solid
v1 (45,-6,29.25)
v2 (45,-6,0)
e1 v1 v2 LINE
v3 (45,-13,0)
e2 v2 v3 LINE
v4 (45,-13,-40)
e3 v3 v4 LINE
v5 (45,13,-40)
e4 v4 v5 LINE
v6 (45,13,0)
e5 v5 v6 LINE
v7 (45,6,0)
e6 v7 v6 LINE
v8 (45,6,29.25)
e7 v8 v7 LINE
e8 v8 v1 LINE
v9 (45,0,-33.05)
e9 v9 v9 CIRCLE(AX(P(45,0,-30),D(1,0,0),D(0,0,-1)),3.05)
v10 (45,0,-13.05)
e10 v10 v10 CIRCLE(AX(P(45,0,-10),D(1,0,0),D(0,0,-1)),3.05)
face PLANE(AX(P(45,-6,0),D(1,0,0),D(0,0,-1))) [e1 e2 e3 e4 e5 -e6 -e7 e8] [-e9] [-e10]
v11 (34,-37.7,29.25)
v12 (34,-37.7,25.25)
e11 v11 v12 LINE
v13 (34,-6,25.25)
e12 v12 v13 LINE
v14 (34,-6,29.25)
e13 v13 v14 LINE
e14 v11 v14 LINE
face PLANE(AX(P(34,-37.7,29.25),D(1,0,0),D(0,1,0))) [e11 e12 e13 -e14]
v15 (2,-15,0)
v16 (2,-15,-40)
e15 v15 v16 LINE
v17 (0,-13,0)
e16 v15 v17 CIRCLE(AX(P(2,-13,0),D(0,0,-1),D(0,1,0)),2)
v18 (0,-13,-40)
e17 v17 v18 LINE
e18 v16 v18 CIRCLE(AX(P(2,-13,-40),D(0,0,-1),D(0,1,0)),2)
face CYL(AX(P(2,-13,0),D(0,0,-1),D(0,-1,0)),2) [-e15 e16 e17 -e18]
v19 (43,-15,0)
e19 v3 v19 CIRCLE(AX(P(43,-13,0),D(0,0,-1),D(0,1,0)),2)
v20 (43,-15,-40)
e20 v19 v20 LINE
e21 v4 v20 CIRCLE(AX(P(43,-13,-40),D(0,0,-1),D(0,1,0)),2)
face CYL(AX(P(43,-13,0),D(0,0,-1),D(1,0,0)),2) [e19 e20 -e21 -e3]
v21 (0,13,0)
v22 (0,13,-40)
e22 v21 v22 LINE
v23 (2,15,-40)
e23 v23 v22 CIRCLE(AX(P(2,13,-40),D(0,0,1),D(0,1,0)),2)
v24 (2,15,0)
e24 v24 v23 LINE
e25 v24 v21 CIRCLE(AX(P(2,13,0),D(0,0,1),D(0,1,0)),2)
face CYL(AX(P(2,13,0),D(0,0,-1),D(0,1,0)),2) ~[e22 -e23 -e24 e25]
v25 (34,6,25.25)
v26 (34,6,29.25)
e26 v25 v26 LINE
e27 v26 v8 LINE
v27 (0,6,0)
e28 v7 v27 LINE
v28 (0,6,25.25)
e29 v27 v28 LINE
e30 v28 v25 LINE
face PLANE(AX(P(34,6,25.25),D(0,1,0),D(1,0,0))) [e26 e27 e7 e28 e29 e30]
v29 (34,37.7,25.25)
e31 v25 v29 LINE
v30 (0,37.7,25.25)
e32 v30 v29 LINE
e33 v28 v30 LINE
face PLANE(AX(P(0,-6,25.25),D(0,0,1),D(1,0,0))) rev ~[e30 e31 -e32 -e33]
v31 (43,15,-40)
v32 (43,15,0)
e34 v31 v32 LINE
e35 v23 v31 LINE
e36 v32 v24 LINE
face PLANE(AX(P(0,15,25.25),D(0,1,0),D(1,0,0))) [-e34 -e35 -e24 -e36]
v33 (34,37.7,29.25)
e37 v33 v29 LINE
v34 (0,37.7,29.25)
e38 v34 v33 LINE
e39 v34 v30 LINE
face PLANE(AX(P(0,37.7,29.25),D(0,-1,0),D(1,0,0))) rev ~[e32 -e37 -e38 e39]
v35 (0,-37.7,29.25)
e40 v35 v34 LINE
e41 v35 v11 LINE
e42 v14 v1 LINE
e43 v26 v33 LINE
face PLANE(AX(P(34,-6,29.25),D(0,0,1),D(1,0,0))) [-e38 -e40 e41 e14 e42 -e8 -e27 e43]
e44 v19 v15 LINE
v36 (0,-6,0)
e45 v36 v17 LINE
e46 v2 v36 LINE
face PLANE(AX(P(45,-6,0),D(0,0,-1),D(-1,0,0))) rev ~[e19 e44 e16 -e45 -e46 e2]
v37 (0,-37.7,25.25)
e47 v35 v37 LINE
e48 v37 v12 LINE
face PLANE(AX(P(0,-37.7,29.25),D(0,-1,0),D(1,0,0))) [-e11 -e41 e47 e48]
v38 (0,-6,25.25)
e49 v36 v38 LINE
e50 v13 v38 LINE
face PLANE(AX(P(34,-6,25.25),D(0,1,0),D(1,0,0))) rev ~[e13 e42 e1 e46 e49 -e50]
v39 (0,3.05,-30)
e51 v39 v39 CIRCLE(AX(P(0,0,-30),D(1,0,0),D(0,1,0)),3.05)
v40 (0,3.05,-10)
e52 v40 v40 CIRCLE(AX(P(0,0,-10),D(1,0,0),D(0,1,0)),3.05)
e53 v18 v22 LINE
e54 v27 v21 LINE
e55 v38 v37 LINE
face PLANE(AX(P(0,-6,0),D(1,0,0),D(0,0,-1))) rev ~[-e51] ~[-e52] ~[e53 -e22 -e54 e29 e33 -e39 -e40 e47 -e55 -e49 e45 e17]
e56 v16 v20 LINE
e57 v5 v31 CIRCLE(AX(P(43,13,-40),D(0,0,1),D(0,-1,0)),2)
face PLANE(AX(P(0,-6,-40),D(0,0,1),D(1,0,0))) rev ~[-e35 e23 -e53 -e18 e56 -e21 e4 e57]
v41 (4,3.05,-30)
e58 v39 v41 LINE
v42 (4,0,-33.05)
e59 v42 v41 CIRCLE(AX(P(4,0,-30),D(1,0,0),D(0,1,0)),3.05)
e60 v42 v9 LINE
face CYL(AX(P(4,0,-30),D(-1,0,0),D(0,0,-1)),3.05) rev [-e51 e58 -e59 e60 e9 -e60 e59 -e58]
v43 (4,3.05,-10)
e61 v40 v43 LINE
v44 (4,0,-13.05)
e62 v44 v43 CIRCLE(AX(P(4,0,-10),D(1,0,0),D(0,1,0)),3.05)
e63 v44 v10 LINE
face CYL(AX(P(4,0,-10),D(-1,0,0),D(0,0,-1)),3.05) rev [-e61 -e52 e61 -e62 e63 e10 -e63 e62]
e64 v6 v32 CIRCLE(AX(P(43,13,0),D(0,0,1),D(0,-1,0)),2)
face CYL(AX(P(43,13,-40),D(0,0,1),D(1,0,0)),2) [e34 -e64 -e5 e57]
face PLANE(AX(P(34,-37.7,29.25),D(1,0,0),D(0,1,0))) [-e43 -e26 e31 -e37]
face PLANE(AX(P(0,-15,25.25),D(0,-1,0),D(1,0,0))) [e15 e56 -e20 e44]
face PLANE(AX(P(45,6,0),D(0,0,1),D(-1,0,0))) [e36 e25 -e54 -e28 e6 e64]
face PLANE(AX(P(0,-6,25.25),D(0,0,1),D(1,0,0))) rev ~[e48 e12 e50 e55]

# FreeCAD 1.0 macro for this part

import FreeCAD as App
import Part
import Sketcher

V = App.Vector
Q = App.Units.Quantity


def edges_at(feature, points):
    """Names of the edges that pass closest to the given points."""
    edges = feature.Shape.Edges
    near = lambda p: min(range(len(edges)), key=lambda i: edges[i].distToShape(Part.Vertex(*p))[0])
    return sorted({f"Edge{near(p) + 1}" for p in points})


def add_polygon(sketch, points):
    """Adds a closed chain of lines whose ends are joined by coincident constraints."""
    first, n = sketch.GeometryCount, len(points)
    for a, b in zip(points, points[1:] + points[:1]):
        sketch.addGeometry(Part.LineSegment(App.Vector(*a, 0), App.Vector(*b, 0)), False)
    for i in range(n):
        sketch.addConstraint(Sketcher.Constraint("Coincident", first + i, 2, first + (i + 1) % n, 1))

doc = App.newDocument("Part")
params = doc.addObject("Spreadsheet::Sheet", "Params")
for row, (alias, value) in enumerate([
    ("sketch1_diameter", "6.1 mm"),
    ("sketch1_width", "12 mm"),
    ("sketch1_height", "40 mm"),
    ("pad1_length", "4 mm"),
    ("sketch2_width", "4 mm"),
    ("sketch2_height", "12 mm"),
    ("pad2_length", "29.25 mm"),
    ("sketch3_width", "34 mm"),
    ("sketch3_height", "31.7 mm"),
    ("sketch3_width2", "4 mm"),
    ("sketch3_height2", "12 mm"),
    ("pad3_length", "4 mm"),
    ("sketch4_diameter", "6.1 mm"),
    ("sketch4_width", "12 mm"),
    ("sketch4_height", "65.25 mm"),
    ("pad4_length", "41 mm"),
    ("sketch5_width", "11 mm"),
    ("sketch5_height", "12 mm"),
    ("pad5_length", "4 mm"),
    ("sketch6_height", "40 mm"),
    ("sketch6_width", "45 mm"),
    ("pad6_length", "9 mm"),
    ("fillet_radius", "2 mm"),
    ("sketch7_width", "45 mm"),
    ("sketch7_height", "40 mm"),
    ("pad7_length", "9 mm"),
    ("fillet2_radius", "2 mm"),
], start=1):
    params.set(f"A{row}", alias)
    params.set(f"B{row}", "=" + value)
    params.setAlias(f"B{row}", alias)

body = doc.addObject("PartDesign::Body", "Body")

# Sketch on YZ plane
sketch1 = doc.addObject("Sketcher::SketchObject", "Sketch")
body.addObject(sketch1)
sketch1.AttachmentSupport = (doc.YZ_Plane, [""])
sketch1.MapMode = "FlatFace"
add_polygon(sketch1, [(6, 0), (-6, 0), (-6, -40), (6, -40)])  # lines 0-3
sketch1.addGeometry(Part.Circle(V(0, -30, 0), V(0, 0, 1), 3), False)  # 4
sketch1.addGeometry(Part.Circle(V(0, -10, 0), V(0, 0, 1), 3), False)  # 5
sketch1.addConstraint(Sketcher.Constraint("Horizontal", 0))
sketch1.addConstraint(Sketcher.Constraint("Vertical", 1))
sketch1.addConstraint(Sketcher.Constraint("Horizontal", 2))
sketch1.addConstraint(Sketcher.Constraint("Vertical", 3))
sketch1.addConstraint(Sketcher.Constraint("Equal", 4, 5))
sketch1.addConstraint(Sketcher.Constraint("Symmetric", 0, 2, 3, 2, -1, 1))
sketch1.addConstraint(Sketcher.Constraint("PointOnObject", 4, 3, -2))
sketch1.addConstraint(Sketcher.Constraint("PointOnObject", 5, 3, -2))
sketch1.addConstraint(Sketcher.Constraint("Diameter", 4, Q("6.1 mm")))
sketch1.addConstraint(Sketcher.Constraint("DistanceX", 0, 2, 0, 1, Q("12 mm")))
sketch1.addConstraint(Sketcher.Constraint("DistanceY", 1, 2, 1, 1, Q("40 mm")))
sketch1.addConstraint(Sketcher.Constraint("DistanceY", 4, 3, -1, 1, Q("30 mm")))
sketch1.addConstraint(Sketcher.Constraint("DistanceY", 5, 3, -1, 1, Q("10 mm")))
sketch1.setExpression("Constraints[12]", "Params.sketch1_diameter")
sketch1.setExpression("Constraints[13]", "Params.sketch1_width")
sketch1.setExpression("Constraints[14]", "Params.sketch1_height")
pad1 = doc.addObject("PartDesign::Pad", "Pad")
body.addObject(pad1)
pad1.Profile = sketch1
pad1.setExpression("Length", "Params.pad1_length")

# Sketch on XY plane
sketch2 = doc.addObject("Sketcher::SketchObject", "Sketch001")
body.addObject(sketch2)
sketch2.AttachmentSupport = (doc.XY_Plane, [""])
sketch2.MapMode = "FlatFace"
add_polygon(sketch2, [(4, 6), (0, 6), (0, -6), (4, -6)])  # lines 0-3
sketch2.addConstraint(Sketcher.Constraint("Horizontal", 0))
sketch2.addConstraint(Sketcher.Constraint("Vertical", 1))
sketch2.addConstraint(Sketcher.Constraint("Horizontal", 2))
sketch2.addConstraint(Sketcher.Constraint("Vertical", 3))
sketch2.addConstraint(Sketcher.Constraint("Symmetric", 0, 2, 1, 2, -1, 1))
sketch2.addConstraint(Sketcher.Constraint("DistanceX", 0, 2, 0, 1, Q("4 mm")))
sketch2.addConstraint(Sketcher.Constraint("DistanceY", 1, 2, 1, 1, Q("12 mm")))
sketch2.setExpression("Constraints[9]", "Params.sketch2_width")
sketch2.setExpression("Constraints[10]", "Params.sketch2_height")
pad2 = doc.addObject("PartDesign::Pad", "Pad001")
body.addObject(pad2)
pad2.Profile = sketch2
pad2.setExpression("Length", "Params.pad2_length")

# Sketch on XY plane
sketch3 = doc.addObject("Sketcher::SketchObject", "Sketch002")
body.addObject(sketch3)
sketch3.AttachmentSupport = (doc.XY_Plane, [""])
sketch3.MapMode = "FlatFace"
sketch3.AttachmentOffset = App.Placement(V(0, 0, 29.25), App.Rotation())
add_polygon(sketch3, [(4, -6), (0, -6), (0, -37.7), (34, -37.7), (34, 37.7), (0, 37.7), (0, 6), (4, 6)])  # lines 0-7
sketch3.addConstraint(Sketcher.Constraint("Horizontal", 0))
sketch3.addConstraint(Sketcher.Constraint("Vertical", 1))
sketch3.addConstraint(Sketcher.Constraint("Horizontal", 2))
sketch3.addConstraint(Sketcher.Constraint("Vertical", 3))
sketch3.addConstraint(Sketcher.Constraint("Horizontal", 4))
sketch3.addConstraint(Sketcher.Constraint("Vertical", 5))
sketch3.addConstraint(Sketcher.Constraint("Horizontal", 6))
sketch3.addConstraint(Sketcher.Constraint("Vertical", 7))
sketch3.addConstraint(Sketcher.Constraint("Symmetric", 1, 2, 4, 2, -1, 1))
sketch3.addConstraint(Sketcher.Constraint("Symmetric", 0, 2, 5, 2, -1))
sketch3.addConstraint(Sketcher.Constraint("DistanceX", 2, 1, 2, 2, Q("34 mm")))
sketch3.addConstraint(Sketcher.Constraint("DistanceY", 1, 2, 1, 1, Q("31.7 mm")))
sketch3.addConstraint(Sketcher.Constraint("DistanceX", 0, 2, 0, 1, Q("4 mm")))
sketch3.addConstraint(Sketcher.Constraint("DistanceY", 7, 2, 7, 1, Q("12 mm")))
sketch3.setExpression("Constraints[18]", "Params.sketch3_width")
sketch3.setExpression("Constraints[19]", "Params.sketch3_height")
sketch3.setExpression("Constraints[20]", "Params.sketch3_width2")
sketch3.setExpression("Constraints[21]", "Params.sketch3_height2")
pad3 = doc.addObject("PartDesign::Pad", "Pad002")
body.addObject(pad3)
pad3.Profile = sketch3
pad3.setExpression("Length", "Params.pad3_length")
pad3.Reversed = True

# Sketch on YZ plane
sketch4 = doc.addObject("Sketcher::SketchObject", "Sketch003")
body.addObject(sketch4)
sketch4.AttachmentSupport = (doc.YZ_Plane, [""])
sketch4.MapMode = "FlatFace"
sketch4.AttachmentOffset = App.Placement(V(0, 0, 4), App.Rotation())
add_polygon(sketch4, [(6, -40), (6, 25.2), (-6, 25.2), (-6, -40)])  # lines 0-3
sketch4.addGeometry(Part.Circle(V(0, -10, 0), V(0, 0, 1), 3), False)  # 4
sketch4.addGeometry(Part.Circle(V(0, -30, 0), V(0, 0, 1), 3), False)  # 5
sketch4.addConstraint(Sketcher.Constraint("Vertical", 0))
sketch4.addConstraint(Sketcher.Constraint("Horizontal", 1))
sketch4.addConstraint(Sketcher.Constraint("Vertical", 2))
sketch4.addConstraint(Sketcher.Constraint("Horizontal", 3))
sketch4.addConstraint(Sketcher.Constraint("Equal", 4, 5))
sketch4.addConstraint(Sketcher.Constraint("PointOnObject", 4, 3, -2))
sketch4.addConstraint(Sketcher.Constraint("PointOnObject", 5, 3, -2))
sketch4.addConstraint(Sketcher.Constraint("Diameter", 4, Q("6.1 mm")))
sketch4.addConstraint(Sketcher.Constraint("DistanceX", 1, 2, 1, 1, Q("12 mm")))
sketch4.addConstraint(Sketcher.Constraint("DistanceY", 4, 3, -1, 1, Q("10 mm")))
sketch4.addConstraint(Sketcher.Constraint("DistanceY", 5, 3, -1, 1, Q("30 mm")))
sketch4.addConstraint(Sketcher.Constraint("DistanceX", -1, 1, 0, 2, Q("6 mm")))
sketch4.addConstraint(Sketcher.Constraint("DistanceY", 2, 2, -1, 1, Q("40 mm")))
sketch4.addConstraint(Sketcher.Constraint("DistanceY", 0, 1, 0, 2, Q("65.25 mm")))
sketch4.setExpression("Constraints[11]", "Params.sketch4_diameter")
sketch4.setExpression("Constraints[12]", "Params.sketch4_width")
sketch4.setExpression("Constraints[17]", "Params.sketch4_height")
pad4 = doc.addObject("PartDesign::Pad", "Pad003")
body.addObject(pad4)
pad4.Profile = sketch4
pad4.setExpression("Length", "Params.pad4_length")

# Sketch on XY plane
sketch5 = doc.addObject("Sketcher::SketchObject", "Sketch004")
body.addObject(sketch5)
sketch5.AttachmentSupport = (doc.XY_Plane, [""])
sketch5.MapMode = "FlatFace"
sketch5.AttachmentOffset = App.Placement(V(0, 0, 25.25), App.Rotation())
add_polygon(sketch5, [(45, 6), (34, 6), (34, -6), (45, -6)])  # lines 0-3
sketch5.addConstraint(Sketcher.Constraint("Horizontal", 0))
sketch5.addConstraint(Sketcher.Constraint("Vertical", 1))
sketch5.addConstraint(Sketcher.Constraint("Horizontal", 2))
sketch5.addConstraint(Sketcher.Constraint("Vertical", 3))
sketch5.addConstraint(Sketcher.Constraint("DistanceX", 0, 2, 0, 1, Q("11 mm")))
sketch5.addConstraint(Sketcher.Constraint("DistanceY", 1, 2, 1, 1, Q("12 mm")))
sketch5.addConstraint(Sketcher.Constraint("DistanceX", -1, 1, 0, 2, Q("34 mm")))
sketch5.addConstraint(Sketcher.Constraint("DistanceY", -1, 1, 0, 2, Q("6 mm")))
sketch5.setExpression("Constraints[8]", "Params.sketch5_width")
sketch5.setExpression("Constraints[9]", "Params.sketch5_height")
pad5 = doc.addObject("PartDesign::Pad", "Pad004")
body.addObject(pad5)
pad5.Profile = sketch5
pad5.setExpression("Length", "Params.pad5_length")

# Sketch on XZ plane
sketch6 = doc.addObject("Sketcher::SketchObject", "Sketch005")
body.addObject(sketch6)
sketch6.AttachmentSupport = (doc.XZ_Plane, [""])
sketch6.MapMode = "FlatFace"
sketch6.AttachmentOffset = App.Placement(V(0, 0, -6), App.Rotation())
add_polygon(sketch6, [(45, 0), (45, -40), (0, -40), (0, 0)])  # lines 0-3
sketch6.addConstraint(Sketcher.Constraint("Vertical", 0))
sketch6.addConstraint(Sketcher.Constraint("Horizontal", 1))
sketch6.addConstraint(Sketcher.Constraint("Vertical", 2))
sketch6.addConstraint(Sketcher.Constraint("Horizontal", 3))
sketch6.addConstraint(Sketcher.Constraint("Coincident", 2, 2, -1, 1))
sketch6.addConstraint(Sketcher.Constraint("DistanceY", 0, 2, 0, 1, Q("40 mm")))
sketch6.addConstraint(Sketcher.Constraint("DistanceX", 1, 2, 1, 1, Q("45 mm")))
sketch6.setExpression("Constraints[9]", "Params.sketch6_height")
sketch6.setExpression("Constraints[10]", "Params.sketch6_width")
pad6 = doc.addObject("PartDesign::Pad", "Pad005")
body.addObject(pad6)
pad6.Profile = sketch6
pad6.setExpression("Length", "Params.pad6_length")
pad6.Reversed = True
doc.recompute()

fillet = doc.addObject("PartDesign::Fillet", "Fillet")
body.addObject(fillet)
fillet.Base = (pad6, edges_at(pad6, [(0, 15, -20), (45, 15, -20)]))
fillet.setExpression("Radius", "Params.fillet_radius")

# Sketch on XZ plane
sketch7 = doc.addObject("Sketcher::SketchObject", "Sketch006")
body.addObject(sketch7)
sketch7.AttachmentSupport = (doc.XZ_Plane, [""])
sketch7.MapMode = "FlatFace"
sketch7.AttachmentOffset = App.Placement(V(0, 0, 6), App.Rotation())
add_polygon(sketch7, [(45, -40), (45, 0), (0, 0), (0, -40)])  # lines 0-3
sketch7.addConstraint(Sketcher.Constraint("Vertical", 0))
sketch7.addConstraint(Sketcher.Constraint("Horizontal", 1))
sketch7.addConstraint(Sketcher.Constraint("Vertical", 2))
sketch7.addConstraint(Sketcher.Constraint("Horizontal", 3))
sketch7.addConstraint(Sketcher.Constraint("Coincident", 1, 2, -1, 1))
sketch7.addConstraint(Sketcher.Constraint("DistanceX", 1, 2, 1, 1, Q("45 mm")))
sketch7.addConstraint(Sketcher.Constraint("DistanceY", 0, 1, 0, 2, Q("40 mm")))
sketch7.setExpression("Constraints[9]", "Params.sketch7_width")
sketch7.setExpression("Constraints[10]", "Params.sketch7_height")
pad7 = doc.addObject("PartDesign::Pad", "Pad006")
body.addObject(pad7)
pad7.Profile = sketch7
pad7.setExpression("Length", "Params.pad7_length")
doc.recompute()

fillet2 = doc.addObject("PartDesign::Fillet", "Fillet001")
body.addObject(fillet2)
fillet2.Base = (pad7, edges_at(pad7, [(45, -15, -20), (0, -15, -20)]))
fillet2.setExpression("Radius", "Params.fillet2_radius")

doc.recompute()
